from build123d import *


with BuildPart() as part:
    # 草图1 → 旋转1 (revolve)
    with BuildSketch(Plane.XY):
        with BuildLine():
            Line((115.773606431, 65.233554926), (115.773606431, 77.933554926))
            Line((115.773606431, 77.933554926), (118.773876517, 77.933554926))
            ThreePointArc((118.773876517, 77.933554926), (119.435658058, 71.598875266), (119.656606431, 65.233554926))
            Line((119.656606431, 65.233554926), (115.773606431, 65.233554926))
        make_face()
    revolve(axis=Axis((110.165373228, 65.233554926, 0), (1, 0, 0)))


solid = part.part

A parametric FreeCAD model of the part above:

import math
import FreeCAD as App
import Part
import Sketcher

V = App.Vector

doc = App.newDocument("Part")
body = doc.addObject("PartDesign::Body", "Body")

sketch1 = doc.addObject("Sketcher::SketchObject", "Sketch")
body.addObject(sketch1)
sketch1.AttachmentSupport = (doc.XY_Plane, [""])
sketch1.MapMode = "FlatFace"
sketch1.addGeometry(Part.LineSegment(V(115.8, 77.9, 0), V(115.8, 65.2, 0)), False)
sketch1.addGeometry(Part.LineSegment(V(115.8, 65.2, 0), V(119.7, 65.2, 0)), False)
sketch1.addGeometry(Part.ArcOfCircle(Part.Circle(V(27.9, 65.2, 0), V(0, 0, 1), 91.8), math.radians(0), math.radians(7.95)), False)
sketch1.addGeometry(Part.LineSegment(V(118.8, 77.9, 0), V(115.8, 77.9, 0)), False)
sketch1.addGeometry(Part.LineSegment(V(27.9, 65.2, 0), V(119.7, 65.2, 0)), True)
sketch1.addConstraint(Sketcher.Constraint("Coincident", 0, 2, 1, 1))
sketch1.addConstraint(Sketcher.Constraint("Coincident", 1, 2, 2, 1))
sketch1.addConstraint(Sketcher.Constraint("Coincident", 2, 2, 3, 1))
sketch1.addConstraint(Sketcher.Constraint("Coincident", 3, 2, 0, 1))
sketch1.addConstraint(Sketcher.Constraint("Vertical", 0))
sketch1.addConstraint(Sketcher.Constraint("Horizontal", 1))
sketch1.addConstraint(Sketcher.Constraint("Horizontal", 3))
sketch1.addConstraint(Sketcher.Constraint("Horizontal", 4))
sketch1.addConstraint(Sketcher.Constraint("Coincident", 4, 1, 2, 3))
sketch1.addConstraint(Sketcher.Constraint("Coincident", 4, 2, 1, 2))
sketch1.addConstraint(Sketcher.Constraint("Radius", 2, 91.8))
sketch1.addConstraint(Sketcher.Constraint("DistanceY", 0, 2, 0, 1, 12.7))
sketch1.addConstraint(Sketcher.Constraint("DistanceX", 1, 1, 1, 2, 3.883))
sketch1.addConstraint(Sketcher.Constraint("DistanceX", -1, 1, 2, 3, 27.856606))
sketch1.addConstraint(Sketcher.Constraint("DistanceY", -1, 1, 2, 3, 65.233555))
revolution = doc.addObject("PartDesign::Revolution", "Revolution")
body.addObject(revolution)
revolution.Profile = sketch1
revolution.ReferenceAxis = (sketch1, ["Axis0"])
revolution.Angle = 360

doc.recompute()
